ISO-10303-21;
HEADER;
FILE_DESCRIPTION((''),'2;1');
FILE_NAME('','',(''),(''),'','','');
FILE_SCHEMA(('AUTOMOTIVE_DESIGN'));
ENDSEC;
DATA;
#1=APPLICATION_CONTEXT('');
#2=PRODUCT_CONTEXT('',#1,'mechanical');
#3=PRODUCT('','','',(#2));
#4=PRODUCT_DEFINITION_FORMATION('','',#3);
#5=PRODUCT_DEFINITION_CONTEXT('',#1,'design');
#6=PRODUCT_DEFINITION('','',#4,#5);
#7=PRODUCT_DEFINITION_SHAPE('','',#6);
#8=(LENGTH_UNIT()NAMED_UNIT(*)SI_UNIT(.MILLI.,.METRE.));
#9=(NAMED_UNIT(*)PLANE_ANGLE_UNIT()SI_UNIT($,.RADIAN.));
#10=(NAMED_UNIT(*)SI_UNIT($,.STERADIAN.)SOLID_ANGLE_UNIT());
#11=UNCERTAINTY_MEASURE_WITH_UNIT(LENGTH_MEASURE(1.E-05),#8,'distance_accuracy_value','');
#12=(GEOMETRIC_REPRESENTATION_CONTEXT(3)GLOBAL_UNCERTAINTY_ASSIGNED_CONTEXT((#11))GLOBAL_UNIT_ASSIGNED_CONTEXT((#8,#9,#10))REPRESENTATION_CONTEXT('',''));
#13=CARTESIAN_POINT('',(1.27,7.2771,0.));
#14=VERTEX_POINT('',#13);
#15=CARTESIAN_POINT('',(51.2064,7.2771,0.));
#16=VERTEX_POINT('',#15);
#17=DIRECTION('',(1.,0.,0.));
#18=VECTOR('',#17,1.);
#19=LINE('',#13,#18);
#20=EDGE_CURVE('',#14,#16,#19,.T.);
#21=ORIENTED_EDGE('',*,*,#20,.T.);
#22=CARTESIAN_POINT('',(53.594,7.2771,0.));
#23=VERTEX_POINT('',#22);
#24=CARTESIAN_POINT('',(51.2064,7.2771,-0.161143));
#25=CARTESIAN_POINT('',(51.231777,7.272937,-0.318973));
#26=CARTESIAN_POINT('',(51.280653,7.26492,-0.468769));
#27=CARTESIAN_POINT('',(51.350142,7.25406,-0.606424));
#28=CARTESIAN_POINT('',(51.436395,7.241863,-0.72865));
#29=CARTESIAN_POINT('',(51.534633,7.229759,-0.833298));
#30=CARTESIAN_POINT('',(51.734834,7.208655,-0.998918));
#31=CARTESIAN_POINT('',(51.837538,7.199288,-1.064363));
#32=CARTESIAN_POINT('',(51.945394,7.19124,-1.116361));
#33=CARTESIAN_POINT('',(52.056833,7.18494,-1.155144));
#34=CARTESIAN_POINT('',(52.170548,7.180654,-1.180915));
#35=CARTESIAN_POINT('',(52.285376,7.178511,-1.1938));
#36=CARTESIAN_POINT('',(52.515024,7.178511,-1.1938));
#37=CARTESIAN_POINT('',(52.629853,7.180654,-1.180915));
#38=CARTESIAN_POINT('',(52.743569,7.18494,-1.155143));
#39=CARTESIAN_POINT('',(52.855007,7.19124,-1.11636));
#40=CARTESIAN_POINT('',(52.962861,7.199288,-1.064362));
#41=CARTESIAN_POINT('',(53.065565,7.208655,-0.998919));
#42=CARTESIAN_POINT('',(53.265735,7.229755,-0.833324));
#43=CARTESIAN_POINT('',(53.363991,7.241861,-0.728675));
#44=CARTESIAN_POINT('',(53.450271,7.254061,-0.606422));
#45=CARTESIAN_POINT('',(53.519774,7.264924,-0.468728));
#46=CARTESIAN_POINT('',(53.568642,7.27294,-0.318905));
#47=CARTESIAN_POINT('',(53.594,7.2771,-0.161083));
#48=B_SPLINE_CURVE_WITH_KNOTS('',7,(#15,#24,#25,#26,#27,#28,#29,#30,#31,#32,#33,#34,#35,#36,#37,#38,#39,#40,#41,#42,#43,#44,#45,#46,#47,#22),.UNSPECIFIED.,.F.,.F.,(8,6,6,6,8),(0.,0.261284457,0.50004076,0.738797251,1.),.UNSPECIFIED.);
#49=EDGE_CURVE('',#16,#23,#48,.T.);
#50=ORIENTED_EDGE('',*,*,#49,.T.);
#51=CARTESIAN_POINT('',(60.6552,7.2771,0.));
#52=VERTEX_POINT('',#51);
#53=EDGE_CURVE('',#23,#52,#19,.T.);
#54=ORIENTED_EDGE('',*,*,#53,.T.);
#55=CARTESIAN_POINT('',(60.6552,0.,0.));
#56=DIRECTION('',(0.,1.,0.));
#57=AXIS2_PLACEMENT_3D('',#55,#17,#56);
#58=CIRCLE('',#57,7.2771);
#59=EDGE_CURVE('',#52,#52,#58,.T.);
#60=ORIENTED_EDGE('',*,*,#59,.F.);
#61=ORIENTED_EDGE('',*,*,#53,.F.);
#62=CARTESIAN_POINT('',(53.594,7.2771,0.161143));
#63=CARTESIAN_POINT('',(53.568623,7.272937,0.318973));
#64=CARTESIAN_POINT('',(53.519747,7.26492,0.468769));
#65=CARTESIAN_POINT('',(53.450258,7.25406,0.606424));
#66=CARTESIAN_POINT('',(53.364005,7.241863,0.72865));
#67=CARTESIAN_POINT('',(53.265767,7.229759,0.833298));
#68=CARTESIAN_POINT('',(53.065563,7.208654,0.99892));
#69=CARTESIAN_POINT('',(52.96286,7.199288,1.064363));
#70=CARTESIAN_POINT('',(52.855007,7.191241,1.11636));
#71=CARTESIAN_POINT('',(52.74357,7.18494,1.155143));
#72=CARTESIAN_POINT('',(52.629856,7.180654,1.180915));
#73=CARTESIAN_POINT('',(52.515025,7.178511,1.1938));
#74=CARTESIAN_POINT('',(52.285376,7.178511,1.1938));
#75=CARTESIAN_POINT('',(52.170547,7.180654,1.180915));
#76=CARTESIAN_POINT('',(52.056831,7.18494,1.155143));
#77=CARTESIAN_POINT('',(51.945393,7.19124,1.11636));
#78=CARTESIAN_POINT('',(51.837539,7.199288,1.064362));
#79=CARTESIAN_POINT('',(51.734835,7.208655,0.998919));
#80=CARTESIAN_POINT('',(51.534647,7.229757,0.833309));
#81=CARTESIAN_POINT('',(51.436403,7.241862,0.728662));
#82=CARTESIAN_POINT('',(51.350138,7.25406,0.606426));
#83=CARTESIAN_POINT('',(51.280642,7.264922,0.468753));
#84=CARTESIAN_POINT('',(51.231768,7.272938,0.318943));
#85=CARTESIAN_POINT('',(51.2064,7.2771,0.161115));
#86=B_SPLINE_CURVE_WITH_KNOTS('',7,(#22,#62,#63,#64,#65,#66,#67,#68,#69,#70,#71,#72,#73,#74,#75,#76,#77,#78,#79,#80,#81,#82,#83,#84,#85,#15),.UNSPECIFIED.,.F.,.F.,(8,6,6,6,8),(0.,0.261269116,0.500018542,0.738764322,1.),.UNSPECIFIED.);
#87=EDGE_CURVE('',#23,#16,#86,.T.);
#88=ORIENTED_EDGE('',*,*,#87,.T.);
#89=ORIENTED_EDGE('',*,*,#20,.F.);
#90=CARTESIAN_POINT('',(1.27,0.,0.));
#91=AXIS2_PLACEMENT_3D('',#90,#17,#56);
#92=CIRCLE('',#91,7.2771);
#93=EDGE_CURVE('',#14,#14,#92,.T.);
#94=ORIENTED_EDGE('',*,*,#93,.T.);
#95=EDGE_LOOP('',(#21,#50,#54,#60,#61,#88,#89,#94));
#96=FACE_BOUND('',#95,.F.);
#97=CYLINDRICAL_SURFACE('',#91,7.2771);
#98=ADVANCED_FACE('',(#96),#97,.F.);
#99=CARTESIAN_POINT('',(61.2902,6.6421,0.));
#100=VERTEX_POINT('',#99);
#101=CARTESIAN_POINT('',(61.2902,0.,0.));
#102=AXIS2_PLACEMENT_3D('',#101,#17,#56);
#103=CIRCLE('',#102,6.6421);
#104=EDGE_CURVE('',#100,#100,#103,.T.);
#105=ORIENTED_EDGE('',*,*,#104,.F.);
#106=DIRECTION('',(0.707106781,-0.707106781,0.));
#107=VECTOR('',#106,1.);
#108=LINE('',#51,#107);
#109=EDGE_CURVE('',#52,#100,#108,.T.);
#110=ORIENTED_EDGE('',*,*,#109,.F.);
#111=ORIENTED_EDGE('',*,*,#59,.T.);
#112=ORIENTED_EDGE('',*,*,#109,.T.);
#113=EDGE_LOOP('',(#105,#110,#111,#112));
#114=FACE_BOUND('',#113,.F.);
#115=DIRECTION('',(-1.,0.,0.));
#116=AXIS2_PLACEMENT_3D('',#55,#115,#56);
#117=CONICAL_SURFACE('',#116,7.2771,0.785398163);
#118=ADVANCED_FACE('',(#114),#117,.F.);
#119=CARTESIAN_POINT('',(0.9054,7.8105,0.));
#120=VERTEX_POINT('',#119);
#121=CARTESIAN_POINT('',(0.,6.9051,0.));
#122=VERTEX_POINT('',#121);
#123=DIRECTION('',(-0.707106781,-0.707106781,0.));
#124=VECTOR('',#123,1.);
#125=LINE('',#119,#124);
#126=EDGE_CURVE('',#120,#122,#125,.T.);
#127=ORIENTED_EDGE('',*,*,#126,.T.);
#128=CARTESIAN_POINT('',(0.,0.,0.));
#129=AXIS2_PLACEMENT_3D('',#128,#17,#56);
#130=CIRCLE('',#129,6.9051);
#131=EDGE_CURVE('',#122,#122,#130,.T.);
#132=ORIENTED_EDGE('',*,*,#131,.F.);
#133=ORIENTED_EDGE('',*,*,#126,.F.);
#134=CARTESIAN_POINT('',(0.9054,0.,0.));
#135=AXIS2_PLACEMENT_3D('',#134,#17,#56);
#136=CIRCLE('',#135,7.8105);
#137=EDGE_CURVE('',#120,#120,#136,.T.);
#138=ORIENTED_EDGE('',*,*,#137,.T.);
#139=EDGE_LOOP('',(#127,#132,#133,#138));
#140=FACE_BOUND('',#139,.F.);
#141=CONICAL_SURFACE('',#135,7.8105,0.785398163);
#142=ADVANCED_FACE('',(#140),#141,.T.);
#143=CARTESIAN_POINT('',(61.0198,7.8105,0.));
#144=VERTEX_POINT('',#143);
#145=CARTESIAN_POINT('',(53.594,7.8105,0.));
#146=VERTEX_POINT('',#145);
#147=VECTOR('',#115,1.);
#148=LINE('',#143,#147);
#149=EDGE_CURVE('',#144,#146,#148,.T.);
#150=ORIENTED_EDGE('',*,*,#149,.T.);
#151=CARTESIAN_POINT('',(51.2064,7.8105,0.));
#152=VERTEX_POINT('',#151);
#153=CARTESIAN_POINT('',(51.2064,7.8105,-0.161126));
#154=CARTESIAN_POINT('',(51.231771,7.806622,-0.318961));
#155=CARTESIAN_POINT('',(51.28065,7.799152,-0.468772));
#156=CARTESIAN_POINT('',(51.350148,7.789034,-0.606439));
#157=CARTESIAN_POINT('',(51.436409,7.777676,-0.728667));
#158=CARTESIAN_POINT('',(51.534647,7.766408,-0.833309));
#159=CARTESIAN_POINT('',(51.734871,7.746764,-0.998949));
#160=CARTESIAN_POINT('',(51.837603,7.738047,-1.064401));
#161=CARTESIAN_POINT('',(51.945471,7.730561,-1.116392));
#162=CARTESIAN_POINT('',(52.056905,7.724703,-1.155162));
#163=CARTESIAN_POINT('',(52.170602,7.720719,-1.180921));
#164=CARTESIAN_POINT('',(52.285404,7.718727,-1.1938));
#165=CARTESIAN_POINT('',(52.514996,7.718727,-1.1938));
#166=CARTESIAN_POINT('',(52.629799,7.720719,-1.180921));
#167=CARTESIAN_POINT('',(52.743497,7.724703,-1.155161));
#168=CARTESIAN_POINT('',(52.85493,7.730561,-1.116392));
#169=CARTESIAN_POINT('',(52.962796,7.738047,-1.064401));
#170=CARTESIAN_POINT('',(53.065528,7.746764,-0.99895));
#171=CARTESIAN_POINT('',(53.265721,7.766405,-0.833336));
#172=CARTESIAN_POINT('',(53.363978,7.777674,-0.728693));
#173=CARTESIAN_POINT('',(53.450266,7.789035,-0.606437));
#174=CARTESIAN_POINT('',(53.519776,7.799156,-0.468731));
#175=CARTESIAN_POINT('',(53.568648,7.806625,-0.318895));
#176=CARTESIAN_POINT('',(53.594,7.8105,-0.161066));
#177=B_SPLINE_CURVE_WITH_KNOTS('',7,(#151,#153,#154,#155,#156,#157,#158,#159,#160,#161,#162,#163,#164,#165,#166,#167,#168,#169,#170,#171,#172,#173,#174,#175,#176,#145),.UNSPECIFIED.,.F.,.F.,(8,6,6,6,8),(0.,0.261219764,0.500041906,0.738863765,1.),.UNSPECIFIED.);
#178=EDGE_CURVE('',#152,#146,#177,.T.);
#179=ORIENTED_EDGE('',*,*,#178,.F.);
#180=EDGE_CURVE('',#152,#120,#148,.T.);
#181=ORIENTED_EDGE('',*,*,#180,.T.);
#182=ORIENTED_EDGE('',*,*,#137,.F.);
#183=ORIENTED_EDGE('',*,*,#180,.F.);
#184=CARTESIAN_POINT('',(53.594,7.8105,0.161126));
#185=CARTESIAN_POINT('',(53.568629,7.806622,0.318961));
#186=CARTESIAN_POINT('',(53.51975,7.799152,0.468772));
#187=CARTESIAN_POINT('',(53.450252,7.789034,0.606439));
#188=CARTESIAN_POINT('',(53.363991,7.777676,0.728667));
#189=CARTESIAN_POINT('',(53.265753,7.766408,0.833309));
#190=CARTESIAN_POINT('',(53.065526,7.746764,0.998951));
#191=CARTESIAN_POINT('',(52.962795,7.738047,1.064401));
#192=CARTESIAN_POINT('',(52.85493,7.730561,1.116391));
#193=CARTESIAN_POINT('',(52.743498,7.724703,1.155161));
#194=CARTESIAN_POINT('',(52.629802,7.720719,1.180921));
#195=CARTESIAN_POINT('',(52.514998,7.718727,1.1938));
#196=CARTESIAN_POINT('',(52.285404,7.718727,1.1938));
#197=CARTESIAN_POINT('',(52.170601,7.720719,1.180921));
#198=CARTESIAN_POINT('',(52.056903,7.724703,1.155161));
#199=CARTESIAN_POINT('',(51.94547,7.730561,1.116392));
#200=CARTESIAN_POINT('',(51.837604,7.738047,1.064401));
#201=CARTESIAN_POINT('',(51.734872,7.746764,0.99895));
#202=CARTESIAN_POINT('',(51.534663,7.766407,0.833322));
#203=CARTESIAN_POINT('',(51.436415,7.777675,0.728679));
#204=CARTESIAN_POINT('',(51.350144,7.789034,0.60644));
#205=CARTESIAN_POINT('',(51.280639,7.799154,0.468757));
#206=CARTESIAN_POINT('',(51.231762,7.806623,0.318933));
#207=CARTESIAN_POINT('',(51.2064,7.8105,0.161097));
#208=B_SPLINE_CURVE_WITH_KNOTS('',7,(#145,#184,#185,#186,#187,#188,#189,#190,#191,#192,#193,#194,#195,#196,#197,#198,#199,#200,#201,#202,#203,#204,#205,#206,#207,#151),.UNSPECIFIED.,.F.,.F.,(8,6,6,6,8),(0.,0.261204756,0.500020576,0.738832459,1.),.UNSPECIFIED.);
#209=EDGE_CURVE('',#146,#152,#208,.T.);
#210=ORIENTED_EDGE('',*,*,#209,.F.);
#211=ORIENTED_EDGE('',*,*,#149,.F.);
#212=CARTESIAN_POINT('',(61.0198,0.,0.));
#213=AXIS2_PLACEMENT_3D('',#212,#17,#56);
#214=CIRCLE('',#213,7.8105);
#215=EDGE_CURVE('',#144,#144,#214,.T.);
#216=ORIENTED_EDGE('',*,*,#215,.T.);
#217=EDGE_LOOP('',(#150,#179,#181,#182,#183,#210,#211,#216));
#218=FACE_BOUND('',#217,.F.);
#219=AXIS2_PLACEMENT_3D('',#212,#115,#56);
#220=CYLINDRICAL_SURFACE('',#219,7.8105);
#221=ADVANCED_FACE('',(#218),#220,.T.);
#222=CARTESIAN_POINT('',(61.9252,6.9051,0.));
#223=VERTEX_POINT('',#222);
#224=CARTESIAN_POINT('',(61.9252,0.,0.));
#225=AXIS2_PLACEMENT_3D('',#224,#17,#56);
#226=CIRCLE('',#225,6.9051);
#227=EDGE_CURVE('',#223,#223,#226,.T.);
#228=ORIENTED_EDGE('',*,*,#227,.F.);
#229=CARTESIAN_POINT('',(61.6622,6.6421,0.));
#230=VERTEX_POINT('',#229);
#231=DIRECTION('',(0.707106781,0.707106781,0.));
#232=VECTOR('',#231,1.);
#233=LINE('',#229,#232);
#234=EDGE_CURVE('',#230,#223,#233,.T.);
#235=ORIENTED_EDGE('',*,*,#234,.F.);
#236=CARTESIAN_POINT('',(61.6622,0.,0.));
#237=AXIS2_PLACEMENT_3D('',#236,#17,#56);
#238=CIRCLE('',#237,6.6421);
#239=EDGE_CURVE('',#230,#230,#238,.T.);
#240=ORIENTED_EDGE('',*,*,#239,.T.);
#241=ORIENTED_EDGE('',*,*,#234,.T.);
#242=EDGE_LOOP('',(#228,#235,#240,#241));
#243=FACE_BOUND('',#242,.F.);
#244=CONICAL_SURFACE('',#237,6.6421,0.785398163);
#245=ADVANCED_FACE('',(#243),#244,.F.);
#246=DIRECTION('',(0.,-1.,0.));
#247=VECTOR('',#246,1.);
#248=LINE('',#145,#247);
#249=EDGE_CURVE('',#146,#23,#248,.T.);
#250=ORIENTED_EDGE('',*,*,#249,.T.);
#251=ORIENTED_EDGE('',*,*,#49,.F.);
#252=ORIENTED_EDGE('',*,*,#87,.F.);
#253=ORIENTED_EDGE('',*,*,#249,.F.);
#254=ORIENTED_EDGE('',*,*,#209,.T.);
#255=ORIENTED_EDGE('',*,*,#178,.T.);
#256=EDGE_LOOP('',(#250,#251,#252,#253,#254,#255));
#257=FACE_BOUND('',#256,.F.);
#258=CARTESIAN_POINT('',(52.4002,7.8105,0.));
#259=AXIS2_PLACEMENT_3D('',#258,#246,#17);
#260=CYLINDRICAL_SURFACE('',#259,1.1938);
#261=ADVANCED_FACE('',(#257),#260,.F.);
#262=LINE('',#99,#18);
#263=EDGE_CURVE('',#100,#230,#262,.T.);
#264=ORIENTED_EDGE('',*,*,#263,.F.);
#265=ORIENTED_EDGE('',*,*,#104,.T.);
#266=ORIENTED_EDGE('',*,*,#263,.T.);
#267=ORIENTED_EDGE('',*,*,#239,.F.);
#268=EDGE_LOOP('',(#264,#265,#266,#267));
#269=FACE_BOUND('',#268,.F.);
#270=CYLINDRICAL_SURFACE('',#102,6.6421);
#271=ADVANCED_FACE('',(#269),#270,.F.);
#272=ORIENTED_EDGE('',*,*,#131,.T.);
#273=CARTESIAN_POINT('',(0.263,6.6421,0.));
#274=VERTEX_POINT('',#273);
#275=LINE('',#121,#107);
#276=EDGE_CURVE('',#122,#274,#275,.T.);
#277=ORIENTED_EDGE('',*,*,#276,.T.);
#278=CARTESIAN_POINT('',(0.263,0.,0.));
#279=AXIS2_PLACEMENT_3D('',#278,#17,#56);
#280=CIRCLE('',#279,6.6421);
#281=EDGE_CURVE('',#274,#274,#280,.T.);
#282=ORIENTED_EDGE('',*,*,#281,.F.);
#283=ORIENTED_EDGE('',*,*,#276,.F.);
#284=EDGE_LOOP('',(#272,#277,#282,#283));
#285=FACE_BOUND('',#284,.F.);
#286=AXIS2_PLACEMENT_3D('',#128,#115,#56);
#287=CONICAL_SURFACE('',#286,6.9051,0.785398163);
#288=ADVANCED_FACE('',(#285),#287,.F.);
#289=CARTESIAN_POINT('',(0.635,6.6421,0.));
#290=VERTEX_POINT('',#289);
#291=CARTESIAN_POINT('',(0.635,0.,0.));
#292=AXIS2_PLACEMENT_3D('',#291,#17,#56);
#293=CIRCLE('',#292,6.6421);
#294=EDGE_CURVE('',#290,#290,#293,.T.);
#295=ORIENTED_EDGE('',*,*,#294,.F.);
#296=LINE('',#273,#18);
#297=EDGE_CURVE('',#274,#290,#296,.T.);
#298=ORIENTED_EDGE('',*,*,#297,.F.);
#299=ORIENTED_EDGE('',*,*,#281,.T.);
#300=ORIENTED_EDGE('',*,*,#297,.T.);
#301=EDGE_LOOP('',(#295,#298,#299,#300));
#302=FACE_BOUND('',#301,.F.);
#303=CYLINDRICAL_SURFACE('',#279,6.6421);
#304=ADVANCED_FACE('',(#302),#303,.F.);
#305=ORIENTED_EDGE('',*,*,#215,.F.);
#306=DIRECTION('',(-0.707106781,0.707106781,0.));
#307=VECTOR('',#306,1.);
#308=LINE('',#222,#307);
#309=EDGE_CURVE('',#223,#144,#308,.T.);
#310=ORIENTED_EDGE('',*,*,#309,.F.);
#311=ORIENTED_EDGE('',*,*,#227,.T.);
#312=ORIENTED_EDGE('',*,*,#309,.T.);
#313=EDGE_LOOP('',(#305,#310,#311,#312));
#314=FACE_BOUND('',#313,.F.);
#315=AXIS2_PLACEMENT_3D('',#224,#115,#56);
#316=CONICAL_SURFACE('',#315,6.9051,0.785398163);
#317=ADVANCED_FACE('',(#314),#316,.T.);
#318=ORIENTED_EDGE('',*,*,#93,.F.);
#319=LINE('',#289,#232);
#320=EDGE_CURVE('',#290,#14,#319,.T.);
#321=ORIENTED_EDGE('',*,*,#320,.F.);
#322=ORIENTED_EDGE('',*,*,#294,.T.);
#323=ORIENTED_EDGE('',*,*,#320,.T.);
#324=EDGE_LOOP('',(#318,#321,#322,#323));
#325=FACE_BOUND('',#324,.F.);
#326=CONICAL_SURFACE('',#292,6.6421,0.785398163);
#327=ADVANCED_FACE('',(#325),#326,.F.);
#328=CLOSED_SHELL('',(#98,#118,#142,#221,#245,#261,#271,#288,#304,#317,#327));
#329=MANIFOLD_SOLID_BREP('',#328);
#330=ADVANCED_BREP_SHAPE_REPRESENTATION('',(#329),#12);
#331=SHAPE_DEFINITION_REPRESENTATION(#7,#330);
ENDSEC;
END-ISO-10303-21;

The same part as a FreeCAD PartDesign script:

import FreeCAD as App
import Part
import Sketcher
from FreeCAD import Vector
Q = App.Units.Quantity

doc = App.newDocument("Part")
body = doc.addObject("PartDesign::Body", "Body")

sketch1 = body.newObject("Sketcher::SketchObject", "Sketch")
sketch1.AttachmentSupport = (doc.getObject("XY_Plane"), [""])
sketch1.MapMode = "FlatFace"
sketch1.addGeometry([
    Part.LineSegment(Vector(0.9054, 7.8105, 0), Vector(0, 6.9051, 0)),
    Part.LineSegment(Vector(0, 6.9051, 0), Vector(0.263, 6.6421, 0)),
    Part.LineSegment(Vector(0.263, 6.6421, 0), Vector(0.635, 6.6421, 0)),
    Part.LineSegment(Vector(0.635, 6.6421, 0), Vector(1.27, 7.2771, 0)),
    Part.LineSegment(Vector(1.27, 7.2771, 0), Vector(60.6552, 7.2771, 0)),
    Part.LineSegment(Vector(60.6552, 7.2771, 0), Vector(61.2902, 6.6421, 0)),
    Part.LineSegment(Vector(61.2902, 6.6421, 0), Vector(61.6622, 6.6421, 0)),
    Part.LineSegment(Vector(61.6622, 6.6421, 0), Vector(61.9252, 6.9051, 0)),
    Part.LineSegment(Vector(61.9252, 6.9051, 0), Vector(61.0198, 7.8105, 0)),
    Part.LineSegment(Vector(61.0198, 7.8105, 0), Vector(0.9054, 7.8105, 0)),
], False)
sketch1.addConstraint([
    Sketcher.Constraint("Coincident", 0, 2, 1, 1),
    Sketcher.Constraint("Coincident", 1, 2, 2, 1),
    Sketcher.Constraint("Coincident", 2, 2, 3, 1),
    Sketcher.Constraint("Coincident", 3, 2, 4, 1),
    Sketcher.Constraint("Coincident", 4, 2, 5, 1),
    Sketcher.Constraint("Coincident", 5, 2, 6, 1),
    Sketcher.Constraint("Coincident", 6, 2, 7, 1),
    Sketcher.Constraint("Coincident", 7, 2, 8, 1),
    Sketcher.Constraint("Coincident", 8, 2, 9, 1),
    Sketcher.Constraint("Coincident", 9, 2, 0, 1),
    Sketcher.Constraint("Horizontal", 2),
    Sketcher.Constraint("Horizontal", 4),
    Sketcher.Constraint("Horizontal", 6),
    Sketcher.Constraint("Horizontal", 9),
    Sketcher.Constraint("PointOnObject", 0, 2, -2),
    Sketcher.Constraint("Perpendicular", 0, 1),
    Sketcher.Constraint("Perpendicular", 1, 3),
    Sketcher.Constraint("Perpendicular", 3, 5),
    Sketcher.Constraint("Perpendicular", 5, 7),
    Sketcher.Constraint("Perpendicular", 7, 8),
    Sketcher.Constraint("Horizontal", 2, 2, 5, 2),
    Sketcher.Constraint("Horizontal", 0, 2, 7, 2),
    Sketcher.Constraint("Equal", 2, 6),
    Sketcher.Constraint("Equal", 3, 5),
    Sketcher.Constraint("DistanceX", 4, 1, 4, 2, Q("2.338 in")),
    Sketcher.Constraint("DistanceX", -1, 1, 3, 2, Q("0.05 in")),
    Sketcher.Constraint("DistanceX", 9, 2, 9, 1, Q("2.3667 in")),
    Sketcher.Constraint("DistanceX", -1, 1, 2, 2, Q("0.025 in")),
    Sketcher.Constraint("DistanceY", 4, 2, 8, 2, Q("0.021 in")),
    Sketcher.Constraint("DistanceY", -1, 1, 1, 2, Q("0.2615 in")),
])
revolution = body.newObject("PartDesign::Revolution", "Revolution")
revolution.Profile = sketch1
revolution.ReferenceAxis = (sketch1, ["H_Axis"])
revolution.Angle = 360

sketch2 = body.newObject("Sketcher::SketchObject", "Sketch001")
sketch2.AttachmentSupport = (doc.getObject("XY_Plane"), [""])
sketch2.MapMode = "FlatFace"
sketch2.addGeometry([
    Part.LineSegment(Vector(52.4002, 7.8105, 0), Vector(52.4002, 0, 0)),
    Part.LineSegment(Vector(52.4002, 0, 0), Vector(53.594, 0, 0)),
    Part.LineSegment(Vector(53.594, 0, 0), Vector(53.594, 7.8105, 0)),
    Part.LineSegment(Vector(53.594, 7.8105, 0), Vector(52.4002, 7.8105, 0)),
], False)
sketch2.addGeometry(Part.LineSegment(Vector(52.4002, 7.8105, 0), Vector(52.4002, 0, 0)), True)
sketch2.addConstraint([
    Sketcher.Constraint("Coincident", 0, 2, 1, 1),
    Sketcher.Constraint("Coincident", 1, 2, 2, 1),
    Sketcher.Constraint("Coincident", 2, 2, 3, 1),
    Sketcher.Constraint("Coincident", 3, 2, 0, 1),
    Sketcher.Constraint("Vertical", 0),
    Sketcher.Constraint("Horizontal", 1),
    Sketcher.Constraint("Vertical", 2),
    Sketcher.Constraint("Horizontal", 3),
    Sketcher.Constraint("Vertical", 4),
    Sketcher.Constraint("Coincident", 4, 1, 3, 2),
    Sketcher.Constraint("PointOnObject", 0, 2, -1),
    Sketcher.Constraint("PointOnObject", 4, 2, -1),
    Sketcher.Constraint("DistanceX", 1, 1, 1, 2, Q("0.047 in")),
    Sketcher.Constraint("DistanceX", -1, 1, 1, 2, Q("2.11 in")),
    Sketcher.Constraint("DistanceY", 0, 2, 0, 1, Q("0.3075 in")),
])
groove = body.newObject("PartDesign::Groove", "Groove")
groove.Profile = sketch2
groove.ReferenceAxis = (sketch2, ["Axis0"])
groove.Angle = 360

doc.recompute()
